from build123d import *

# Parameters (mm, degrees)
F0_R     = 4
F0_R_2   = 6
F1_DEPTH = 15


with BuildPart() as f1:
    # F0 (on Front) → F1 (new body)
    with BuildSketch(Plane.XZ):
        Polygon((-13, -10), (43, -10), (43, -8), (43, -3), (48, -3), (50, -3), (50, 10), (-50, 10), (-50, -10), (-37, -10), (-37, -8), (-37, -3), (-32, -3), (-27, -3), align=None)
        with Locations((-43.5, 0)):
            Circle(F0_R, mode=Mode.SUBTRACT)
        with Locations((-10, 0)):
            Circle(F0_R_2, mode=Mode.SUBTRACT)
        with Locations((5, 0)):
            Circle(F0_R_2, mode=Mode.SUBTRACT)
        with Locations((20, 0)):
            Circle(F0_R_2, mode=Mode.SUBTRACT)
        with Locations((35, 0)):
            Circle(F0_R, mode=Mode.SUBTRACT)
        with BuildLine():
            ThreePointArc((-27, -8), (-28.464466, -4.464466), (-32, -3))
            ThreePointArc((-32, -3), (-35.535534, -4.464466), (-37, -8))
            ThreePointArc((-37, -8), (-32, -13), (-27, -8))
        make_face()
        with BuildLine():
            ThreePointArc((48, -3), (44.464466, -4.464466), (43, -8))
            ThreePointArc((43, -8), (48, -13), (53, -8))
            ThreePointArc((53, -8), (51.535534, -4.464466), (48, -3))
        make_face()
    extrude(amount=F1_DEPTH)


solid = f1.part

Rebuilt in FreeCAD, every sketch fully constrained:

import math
import FreeCAD as App
import Part
import Sketcher


def add_polygon(sketch, points):
    """Adds a closed chain of lines whose ends are joined by coincident constraints."""
    first, n = sketch.GeometryCount, len(points)
    for a, b in zip(points, points[1:] + points[:1]):
        sketch.addGeometry(Part.LineSegment(App.Vector(*a, 0), App.Vector(*b, 0)), False)
    for i in range(n):
        sketch.addConstraint(Sketcher.Constraint("Coincident", first + i, 2, first + (i + 1) % n, 1))

doc = App.newDocument("Part")
body = doc.addObject("PartDesign::Body", "Body")
body.AllowCompound = True

# Sketch on XZ plane
sketch1 = body.newObject("Sketcher::SketchObject", "Sketch")
sketch1.AttachmentSupport = (doc.getObject("XZ_Plane"), [""])
sketch1.MapMode = "FlatFace"
add_polygon(sketch1, [(-13, -10), (43, -10), (43, -8), (43, -3), (48, -3), (50, -3), (50, 10), (-50, 10), (-50, -10), (-37, -10), (-37, -8), (-37, -3), (-32, -3), (-27, -3)])  # lines 0-13
sketch1.addGeometry(Part.Circle(App.Vector(-43.5, 0, 0), App.Vector(0, 0, 1), 4), False)  # 14
sketch1.addGeometry(Part.Circle(App.Vector(-10, 0, 0), App.Vector(0, 0, 1), 6), False)  # 15
sketch1.addGeometry(Part.Circle(App.Vector(5, 0, 0), App.Vector(0, 0, 1), 6), False)  # 16
sketch1.addGeometry(Part.Circle(App.Vector(20, 0, 0), App.Vector(0, 0, 1), 6), False)  # 17
sketch1.addGeometry(Part.Circle(App.Vector(35, 0, 0), App.Vector(0, 0, 1), 4), False)  # 18
sketch1.addGeometry(Part.ArcOfCircle(Part.Circle(App.Vector(-32, -8, 0), App.Vector(0, 0, 1), 5), math.radians(-0.000004), math.radians(90.000004)), False)  # 19
sketch1.addGeometry(Part.ArcOfCircle(Part.Circle(App.Vector(-32, -8, 0), App.Vector(0, 0, 1), 5), math.radians(89.999996), math.radians(180.000004)), False)  # 20
sketch1.addGeometry(Part.ArcOfCircle(Part.Circle(App.Vector(-32, -8, 0), App.Vector(0, 0, 1), 5), math.radians(180), math.radians(360)), False)  # 21
sketch1.addGeometry(Part.ArcOfCircle(Part.Circle(App.Vector(48, -8, 0), App.Vector(0, 0, 1), 5), math.radians(89.999996), math.radians(180.000004)), False)  # 22
sketch1.addGeometry(Part.ArcOfCircle(Part.Circle(App.Vector(48, -8, 0), App.Vector(0, 0, 1), 5), math.radians(180), math.radians(360)), False)  # 23
sketch1.addGeometry(Part.ArcOfCircle(Part.Circle(App.Vector(48, -8, 0), App.Vector(0, 0, 1), 5), math.radians(-0.000004), math.radians(90.000004)), False)  # 24
sketch1.addConstraint([
    Sketcher.Constraint("Tangent", 19, 2, 20, 1),
    Sketcher.Constraint("Tangent", 20, 2, 21, 1),
    Sketcher.Constraint("Tangent", 21, 2, 19, 1),
    Sketcher.Constraint("Tangent", 22, 2, 23, 1),
    Sketcher.Constraint("Tangent", 23, 2, 24, 1),
    Sketcher.Constraint("Tangent", 24, 2, 22, 1),
    Sketcher.Constraint("Horizontal", 0),
    Sketcher.Constraint("Vertical", 1),
    Sketcher.Constraint("Vertical", 2),
    Sketcher.Constraint("Horizontal", 3),
    Sketcher.Constraint("Horizontal", 4),
    Sketcher.Constraint("Vertical", 5),
    Sketcher.Constraint("Horizontal", 6),
    Sketcher.Constraint("Vertical", 7),
    Sketcher.Constraint("Horizontal", 8),
    Sketcher.Constraint("Vertical", 9),
    Sketcher.Constraint("Vertical", 10),
    Sketcher.Constraint("Horizontal", 11),
    Sketcher.Constraint("Horizontal", 12),
    Sketcher.Constraint("Coincident", 19, 2, 11, 2),
    Sketcher.Constraint("Coincident", 20, 2, 9, 2),
    Sketcher.Constraint("Coincident", 22, 2, 1, 2),
    Sketcher.Constraint("Coincident", 24, 2, 3, 2),
    Sketcher.Constraint("Equal", 15, 16),
    Sketcher.Constraint("Equal", 16, 17),
    Sketcher.Constraint("Equal", 14, 18),
    Sketcher.Constraint("Equal", 21, 22),
    Sketcher.Constraint("Symmetric", 5, 2, 7, 2, -1, 1),
    Sketcher.Constraint("PointOnObject", 14, 3, -1),
    Sketcher.Constraint("PointOnObject", 15, 3, -1),
    Sketcher.Constraint("PointOnObject", 16, 3, -1),
    Sketcher.Constraint("PointOnObject", 17, 3, -1),
    Sketcher.Constraint("PointOnObject", 18, 3, -1),
    Sketcher.Constraint("Horizontal", 21, 3, 22, 3),
    Sketcher.Constraint("Horizontal", 24, 3, 1, 2),
    Sketcher.Constraint("Horizontal", 0, 2, 7, 2),
    Sketcher.Constraint("Horizontal", 1, 2, 9, 2),
    Sketcher.Constraint("Horizontal", 20, 2, 21, 2),
    Sketcher.Constraint("Horizontal", 22, 2, 23, 2),
    Sketcher.Constraint("Vertical", 24, 3, 3, 2),
    Sketcher.Constraint("Vertical", 21, 3, 11, 2),
    Sketcher.Constraint("Vertical", 12, 2, 21, 2),
    Sketcher.Constraint("Equal", 4, 1),
    Sketcher.Constraint("Equal", 8, 5),
    Sketcher.Constraint("Diameter", 14, 8.0),
    Sketcher.Constraint("Diameter", 15, 12.0),
    Sketcher.Constraint("Radius", 19, 5.0),
    Sketcher.Constraint("DistanceX", 0, 1, 0, 2, 56.0),
    Sketcher.Constraint("DistanceX", 4, 1, 4, 2, 2.0),
    Sketcher.Constraint("DistanceX", 6, 2, 6, 1, 100.0),
    Sketcher.Constraint("DistanceX", 8, 1, 8, 2, 13.0),
    Sketcher.Constraint("DistanceX", 15, 3, -1, 1, 10.0),
    Sketcher.Constraint("DistanceX", -1, 1, 16, 3, 5.0),
    Sketcher.Constraint("DistanceX", -1, 1, 17, 3, 20.0),
    Sketcher.Constraint("DistanceX", -1, 1, 18, 3, 35.0),
    Sketcher.Constraint("DistanceX", 14, 3, -1, 1, 43.5),
])
pad1 = body.newObject("PartDesign::Pad", "Pad")
pad1.Profile = sketch1
pad1.Length = 15

doc.recompute()
